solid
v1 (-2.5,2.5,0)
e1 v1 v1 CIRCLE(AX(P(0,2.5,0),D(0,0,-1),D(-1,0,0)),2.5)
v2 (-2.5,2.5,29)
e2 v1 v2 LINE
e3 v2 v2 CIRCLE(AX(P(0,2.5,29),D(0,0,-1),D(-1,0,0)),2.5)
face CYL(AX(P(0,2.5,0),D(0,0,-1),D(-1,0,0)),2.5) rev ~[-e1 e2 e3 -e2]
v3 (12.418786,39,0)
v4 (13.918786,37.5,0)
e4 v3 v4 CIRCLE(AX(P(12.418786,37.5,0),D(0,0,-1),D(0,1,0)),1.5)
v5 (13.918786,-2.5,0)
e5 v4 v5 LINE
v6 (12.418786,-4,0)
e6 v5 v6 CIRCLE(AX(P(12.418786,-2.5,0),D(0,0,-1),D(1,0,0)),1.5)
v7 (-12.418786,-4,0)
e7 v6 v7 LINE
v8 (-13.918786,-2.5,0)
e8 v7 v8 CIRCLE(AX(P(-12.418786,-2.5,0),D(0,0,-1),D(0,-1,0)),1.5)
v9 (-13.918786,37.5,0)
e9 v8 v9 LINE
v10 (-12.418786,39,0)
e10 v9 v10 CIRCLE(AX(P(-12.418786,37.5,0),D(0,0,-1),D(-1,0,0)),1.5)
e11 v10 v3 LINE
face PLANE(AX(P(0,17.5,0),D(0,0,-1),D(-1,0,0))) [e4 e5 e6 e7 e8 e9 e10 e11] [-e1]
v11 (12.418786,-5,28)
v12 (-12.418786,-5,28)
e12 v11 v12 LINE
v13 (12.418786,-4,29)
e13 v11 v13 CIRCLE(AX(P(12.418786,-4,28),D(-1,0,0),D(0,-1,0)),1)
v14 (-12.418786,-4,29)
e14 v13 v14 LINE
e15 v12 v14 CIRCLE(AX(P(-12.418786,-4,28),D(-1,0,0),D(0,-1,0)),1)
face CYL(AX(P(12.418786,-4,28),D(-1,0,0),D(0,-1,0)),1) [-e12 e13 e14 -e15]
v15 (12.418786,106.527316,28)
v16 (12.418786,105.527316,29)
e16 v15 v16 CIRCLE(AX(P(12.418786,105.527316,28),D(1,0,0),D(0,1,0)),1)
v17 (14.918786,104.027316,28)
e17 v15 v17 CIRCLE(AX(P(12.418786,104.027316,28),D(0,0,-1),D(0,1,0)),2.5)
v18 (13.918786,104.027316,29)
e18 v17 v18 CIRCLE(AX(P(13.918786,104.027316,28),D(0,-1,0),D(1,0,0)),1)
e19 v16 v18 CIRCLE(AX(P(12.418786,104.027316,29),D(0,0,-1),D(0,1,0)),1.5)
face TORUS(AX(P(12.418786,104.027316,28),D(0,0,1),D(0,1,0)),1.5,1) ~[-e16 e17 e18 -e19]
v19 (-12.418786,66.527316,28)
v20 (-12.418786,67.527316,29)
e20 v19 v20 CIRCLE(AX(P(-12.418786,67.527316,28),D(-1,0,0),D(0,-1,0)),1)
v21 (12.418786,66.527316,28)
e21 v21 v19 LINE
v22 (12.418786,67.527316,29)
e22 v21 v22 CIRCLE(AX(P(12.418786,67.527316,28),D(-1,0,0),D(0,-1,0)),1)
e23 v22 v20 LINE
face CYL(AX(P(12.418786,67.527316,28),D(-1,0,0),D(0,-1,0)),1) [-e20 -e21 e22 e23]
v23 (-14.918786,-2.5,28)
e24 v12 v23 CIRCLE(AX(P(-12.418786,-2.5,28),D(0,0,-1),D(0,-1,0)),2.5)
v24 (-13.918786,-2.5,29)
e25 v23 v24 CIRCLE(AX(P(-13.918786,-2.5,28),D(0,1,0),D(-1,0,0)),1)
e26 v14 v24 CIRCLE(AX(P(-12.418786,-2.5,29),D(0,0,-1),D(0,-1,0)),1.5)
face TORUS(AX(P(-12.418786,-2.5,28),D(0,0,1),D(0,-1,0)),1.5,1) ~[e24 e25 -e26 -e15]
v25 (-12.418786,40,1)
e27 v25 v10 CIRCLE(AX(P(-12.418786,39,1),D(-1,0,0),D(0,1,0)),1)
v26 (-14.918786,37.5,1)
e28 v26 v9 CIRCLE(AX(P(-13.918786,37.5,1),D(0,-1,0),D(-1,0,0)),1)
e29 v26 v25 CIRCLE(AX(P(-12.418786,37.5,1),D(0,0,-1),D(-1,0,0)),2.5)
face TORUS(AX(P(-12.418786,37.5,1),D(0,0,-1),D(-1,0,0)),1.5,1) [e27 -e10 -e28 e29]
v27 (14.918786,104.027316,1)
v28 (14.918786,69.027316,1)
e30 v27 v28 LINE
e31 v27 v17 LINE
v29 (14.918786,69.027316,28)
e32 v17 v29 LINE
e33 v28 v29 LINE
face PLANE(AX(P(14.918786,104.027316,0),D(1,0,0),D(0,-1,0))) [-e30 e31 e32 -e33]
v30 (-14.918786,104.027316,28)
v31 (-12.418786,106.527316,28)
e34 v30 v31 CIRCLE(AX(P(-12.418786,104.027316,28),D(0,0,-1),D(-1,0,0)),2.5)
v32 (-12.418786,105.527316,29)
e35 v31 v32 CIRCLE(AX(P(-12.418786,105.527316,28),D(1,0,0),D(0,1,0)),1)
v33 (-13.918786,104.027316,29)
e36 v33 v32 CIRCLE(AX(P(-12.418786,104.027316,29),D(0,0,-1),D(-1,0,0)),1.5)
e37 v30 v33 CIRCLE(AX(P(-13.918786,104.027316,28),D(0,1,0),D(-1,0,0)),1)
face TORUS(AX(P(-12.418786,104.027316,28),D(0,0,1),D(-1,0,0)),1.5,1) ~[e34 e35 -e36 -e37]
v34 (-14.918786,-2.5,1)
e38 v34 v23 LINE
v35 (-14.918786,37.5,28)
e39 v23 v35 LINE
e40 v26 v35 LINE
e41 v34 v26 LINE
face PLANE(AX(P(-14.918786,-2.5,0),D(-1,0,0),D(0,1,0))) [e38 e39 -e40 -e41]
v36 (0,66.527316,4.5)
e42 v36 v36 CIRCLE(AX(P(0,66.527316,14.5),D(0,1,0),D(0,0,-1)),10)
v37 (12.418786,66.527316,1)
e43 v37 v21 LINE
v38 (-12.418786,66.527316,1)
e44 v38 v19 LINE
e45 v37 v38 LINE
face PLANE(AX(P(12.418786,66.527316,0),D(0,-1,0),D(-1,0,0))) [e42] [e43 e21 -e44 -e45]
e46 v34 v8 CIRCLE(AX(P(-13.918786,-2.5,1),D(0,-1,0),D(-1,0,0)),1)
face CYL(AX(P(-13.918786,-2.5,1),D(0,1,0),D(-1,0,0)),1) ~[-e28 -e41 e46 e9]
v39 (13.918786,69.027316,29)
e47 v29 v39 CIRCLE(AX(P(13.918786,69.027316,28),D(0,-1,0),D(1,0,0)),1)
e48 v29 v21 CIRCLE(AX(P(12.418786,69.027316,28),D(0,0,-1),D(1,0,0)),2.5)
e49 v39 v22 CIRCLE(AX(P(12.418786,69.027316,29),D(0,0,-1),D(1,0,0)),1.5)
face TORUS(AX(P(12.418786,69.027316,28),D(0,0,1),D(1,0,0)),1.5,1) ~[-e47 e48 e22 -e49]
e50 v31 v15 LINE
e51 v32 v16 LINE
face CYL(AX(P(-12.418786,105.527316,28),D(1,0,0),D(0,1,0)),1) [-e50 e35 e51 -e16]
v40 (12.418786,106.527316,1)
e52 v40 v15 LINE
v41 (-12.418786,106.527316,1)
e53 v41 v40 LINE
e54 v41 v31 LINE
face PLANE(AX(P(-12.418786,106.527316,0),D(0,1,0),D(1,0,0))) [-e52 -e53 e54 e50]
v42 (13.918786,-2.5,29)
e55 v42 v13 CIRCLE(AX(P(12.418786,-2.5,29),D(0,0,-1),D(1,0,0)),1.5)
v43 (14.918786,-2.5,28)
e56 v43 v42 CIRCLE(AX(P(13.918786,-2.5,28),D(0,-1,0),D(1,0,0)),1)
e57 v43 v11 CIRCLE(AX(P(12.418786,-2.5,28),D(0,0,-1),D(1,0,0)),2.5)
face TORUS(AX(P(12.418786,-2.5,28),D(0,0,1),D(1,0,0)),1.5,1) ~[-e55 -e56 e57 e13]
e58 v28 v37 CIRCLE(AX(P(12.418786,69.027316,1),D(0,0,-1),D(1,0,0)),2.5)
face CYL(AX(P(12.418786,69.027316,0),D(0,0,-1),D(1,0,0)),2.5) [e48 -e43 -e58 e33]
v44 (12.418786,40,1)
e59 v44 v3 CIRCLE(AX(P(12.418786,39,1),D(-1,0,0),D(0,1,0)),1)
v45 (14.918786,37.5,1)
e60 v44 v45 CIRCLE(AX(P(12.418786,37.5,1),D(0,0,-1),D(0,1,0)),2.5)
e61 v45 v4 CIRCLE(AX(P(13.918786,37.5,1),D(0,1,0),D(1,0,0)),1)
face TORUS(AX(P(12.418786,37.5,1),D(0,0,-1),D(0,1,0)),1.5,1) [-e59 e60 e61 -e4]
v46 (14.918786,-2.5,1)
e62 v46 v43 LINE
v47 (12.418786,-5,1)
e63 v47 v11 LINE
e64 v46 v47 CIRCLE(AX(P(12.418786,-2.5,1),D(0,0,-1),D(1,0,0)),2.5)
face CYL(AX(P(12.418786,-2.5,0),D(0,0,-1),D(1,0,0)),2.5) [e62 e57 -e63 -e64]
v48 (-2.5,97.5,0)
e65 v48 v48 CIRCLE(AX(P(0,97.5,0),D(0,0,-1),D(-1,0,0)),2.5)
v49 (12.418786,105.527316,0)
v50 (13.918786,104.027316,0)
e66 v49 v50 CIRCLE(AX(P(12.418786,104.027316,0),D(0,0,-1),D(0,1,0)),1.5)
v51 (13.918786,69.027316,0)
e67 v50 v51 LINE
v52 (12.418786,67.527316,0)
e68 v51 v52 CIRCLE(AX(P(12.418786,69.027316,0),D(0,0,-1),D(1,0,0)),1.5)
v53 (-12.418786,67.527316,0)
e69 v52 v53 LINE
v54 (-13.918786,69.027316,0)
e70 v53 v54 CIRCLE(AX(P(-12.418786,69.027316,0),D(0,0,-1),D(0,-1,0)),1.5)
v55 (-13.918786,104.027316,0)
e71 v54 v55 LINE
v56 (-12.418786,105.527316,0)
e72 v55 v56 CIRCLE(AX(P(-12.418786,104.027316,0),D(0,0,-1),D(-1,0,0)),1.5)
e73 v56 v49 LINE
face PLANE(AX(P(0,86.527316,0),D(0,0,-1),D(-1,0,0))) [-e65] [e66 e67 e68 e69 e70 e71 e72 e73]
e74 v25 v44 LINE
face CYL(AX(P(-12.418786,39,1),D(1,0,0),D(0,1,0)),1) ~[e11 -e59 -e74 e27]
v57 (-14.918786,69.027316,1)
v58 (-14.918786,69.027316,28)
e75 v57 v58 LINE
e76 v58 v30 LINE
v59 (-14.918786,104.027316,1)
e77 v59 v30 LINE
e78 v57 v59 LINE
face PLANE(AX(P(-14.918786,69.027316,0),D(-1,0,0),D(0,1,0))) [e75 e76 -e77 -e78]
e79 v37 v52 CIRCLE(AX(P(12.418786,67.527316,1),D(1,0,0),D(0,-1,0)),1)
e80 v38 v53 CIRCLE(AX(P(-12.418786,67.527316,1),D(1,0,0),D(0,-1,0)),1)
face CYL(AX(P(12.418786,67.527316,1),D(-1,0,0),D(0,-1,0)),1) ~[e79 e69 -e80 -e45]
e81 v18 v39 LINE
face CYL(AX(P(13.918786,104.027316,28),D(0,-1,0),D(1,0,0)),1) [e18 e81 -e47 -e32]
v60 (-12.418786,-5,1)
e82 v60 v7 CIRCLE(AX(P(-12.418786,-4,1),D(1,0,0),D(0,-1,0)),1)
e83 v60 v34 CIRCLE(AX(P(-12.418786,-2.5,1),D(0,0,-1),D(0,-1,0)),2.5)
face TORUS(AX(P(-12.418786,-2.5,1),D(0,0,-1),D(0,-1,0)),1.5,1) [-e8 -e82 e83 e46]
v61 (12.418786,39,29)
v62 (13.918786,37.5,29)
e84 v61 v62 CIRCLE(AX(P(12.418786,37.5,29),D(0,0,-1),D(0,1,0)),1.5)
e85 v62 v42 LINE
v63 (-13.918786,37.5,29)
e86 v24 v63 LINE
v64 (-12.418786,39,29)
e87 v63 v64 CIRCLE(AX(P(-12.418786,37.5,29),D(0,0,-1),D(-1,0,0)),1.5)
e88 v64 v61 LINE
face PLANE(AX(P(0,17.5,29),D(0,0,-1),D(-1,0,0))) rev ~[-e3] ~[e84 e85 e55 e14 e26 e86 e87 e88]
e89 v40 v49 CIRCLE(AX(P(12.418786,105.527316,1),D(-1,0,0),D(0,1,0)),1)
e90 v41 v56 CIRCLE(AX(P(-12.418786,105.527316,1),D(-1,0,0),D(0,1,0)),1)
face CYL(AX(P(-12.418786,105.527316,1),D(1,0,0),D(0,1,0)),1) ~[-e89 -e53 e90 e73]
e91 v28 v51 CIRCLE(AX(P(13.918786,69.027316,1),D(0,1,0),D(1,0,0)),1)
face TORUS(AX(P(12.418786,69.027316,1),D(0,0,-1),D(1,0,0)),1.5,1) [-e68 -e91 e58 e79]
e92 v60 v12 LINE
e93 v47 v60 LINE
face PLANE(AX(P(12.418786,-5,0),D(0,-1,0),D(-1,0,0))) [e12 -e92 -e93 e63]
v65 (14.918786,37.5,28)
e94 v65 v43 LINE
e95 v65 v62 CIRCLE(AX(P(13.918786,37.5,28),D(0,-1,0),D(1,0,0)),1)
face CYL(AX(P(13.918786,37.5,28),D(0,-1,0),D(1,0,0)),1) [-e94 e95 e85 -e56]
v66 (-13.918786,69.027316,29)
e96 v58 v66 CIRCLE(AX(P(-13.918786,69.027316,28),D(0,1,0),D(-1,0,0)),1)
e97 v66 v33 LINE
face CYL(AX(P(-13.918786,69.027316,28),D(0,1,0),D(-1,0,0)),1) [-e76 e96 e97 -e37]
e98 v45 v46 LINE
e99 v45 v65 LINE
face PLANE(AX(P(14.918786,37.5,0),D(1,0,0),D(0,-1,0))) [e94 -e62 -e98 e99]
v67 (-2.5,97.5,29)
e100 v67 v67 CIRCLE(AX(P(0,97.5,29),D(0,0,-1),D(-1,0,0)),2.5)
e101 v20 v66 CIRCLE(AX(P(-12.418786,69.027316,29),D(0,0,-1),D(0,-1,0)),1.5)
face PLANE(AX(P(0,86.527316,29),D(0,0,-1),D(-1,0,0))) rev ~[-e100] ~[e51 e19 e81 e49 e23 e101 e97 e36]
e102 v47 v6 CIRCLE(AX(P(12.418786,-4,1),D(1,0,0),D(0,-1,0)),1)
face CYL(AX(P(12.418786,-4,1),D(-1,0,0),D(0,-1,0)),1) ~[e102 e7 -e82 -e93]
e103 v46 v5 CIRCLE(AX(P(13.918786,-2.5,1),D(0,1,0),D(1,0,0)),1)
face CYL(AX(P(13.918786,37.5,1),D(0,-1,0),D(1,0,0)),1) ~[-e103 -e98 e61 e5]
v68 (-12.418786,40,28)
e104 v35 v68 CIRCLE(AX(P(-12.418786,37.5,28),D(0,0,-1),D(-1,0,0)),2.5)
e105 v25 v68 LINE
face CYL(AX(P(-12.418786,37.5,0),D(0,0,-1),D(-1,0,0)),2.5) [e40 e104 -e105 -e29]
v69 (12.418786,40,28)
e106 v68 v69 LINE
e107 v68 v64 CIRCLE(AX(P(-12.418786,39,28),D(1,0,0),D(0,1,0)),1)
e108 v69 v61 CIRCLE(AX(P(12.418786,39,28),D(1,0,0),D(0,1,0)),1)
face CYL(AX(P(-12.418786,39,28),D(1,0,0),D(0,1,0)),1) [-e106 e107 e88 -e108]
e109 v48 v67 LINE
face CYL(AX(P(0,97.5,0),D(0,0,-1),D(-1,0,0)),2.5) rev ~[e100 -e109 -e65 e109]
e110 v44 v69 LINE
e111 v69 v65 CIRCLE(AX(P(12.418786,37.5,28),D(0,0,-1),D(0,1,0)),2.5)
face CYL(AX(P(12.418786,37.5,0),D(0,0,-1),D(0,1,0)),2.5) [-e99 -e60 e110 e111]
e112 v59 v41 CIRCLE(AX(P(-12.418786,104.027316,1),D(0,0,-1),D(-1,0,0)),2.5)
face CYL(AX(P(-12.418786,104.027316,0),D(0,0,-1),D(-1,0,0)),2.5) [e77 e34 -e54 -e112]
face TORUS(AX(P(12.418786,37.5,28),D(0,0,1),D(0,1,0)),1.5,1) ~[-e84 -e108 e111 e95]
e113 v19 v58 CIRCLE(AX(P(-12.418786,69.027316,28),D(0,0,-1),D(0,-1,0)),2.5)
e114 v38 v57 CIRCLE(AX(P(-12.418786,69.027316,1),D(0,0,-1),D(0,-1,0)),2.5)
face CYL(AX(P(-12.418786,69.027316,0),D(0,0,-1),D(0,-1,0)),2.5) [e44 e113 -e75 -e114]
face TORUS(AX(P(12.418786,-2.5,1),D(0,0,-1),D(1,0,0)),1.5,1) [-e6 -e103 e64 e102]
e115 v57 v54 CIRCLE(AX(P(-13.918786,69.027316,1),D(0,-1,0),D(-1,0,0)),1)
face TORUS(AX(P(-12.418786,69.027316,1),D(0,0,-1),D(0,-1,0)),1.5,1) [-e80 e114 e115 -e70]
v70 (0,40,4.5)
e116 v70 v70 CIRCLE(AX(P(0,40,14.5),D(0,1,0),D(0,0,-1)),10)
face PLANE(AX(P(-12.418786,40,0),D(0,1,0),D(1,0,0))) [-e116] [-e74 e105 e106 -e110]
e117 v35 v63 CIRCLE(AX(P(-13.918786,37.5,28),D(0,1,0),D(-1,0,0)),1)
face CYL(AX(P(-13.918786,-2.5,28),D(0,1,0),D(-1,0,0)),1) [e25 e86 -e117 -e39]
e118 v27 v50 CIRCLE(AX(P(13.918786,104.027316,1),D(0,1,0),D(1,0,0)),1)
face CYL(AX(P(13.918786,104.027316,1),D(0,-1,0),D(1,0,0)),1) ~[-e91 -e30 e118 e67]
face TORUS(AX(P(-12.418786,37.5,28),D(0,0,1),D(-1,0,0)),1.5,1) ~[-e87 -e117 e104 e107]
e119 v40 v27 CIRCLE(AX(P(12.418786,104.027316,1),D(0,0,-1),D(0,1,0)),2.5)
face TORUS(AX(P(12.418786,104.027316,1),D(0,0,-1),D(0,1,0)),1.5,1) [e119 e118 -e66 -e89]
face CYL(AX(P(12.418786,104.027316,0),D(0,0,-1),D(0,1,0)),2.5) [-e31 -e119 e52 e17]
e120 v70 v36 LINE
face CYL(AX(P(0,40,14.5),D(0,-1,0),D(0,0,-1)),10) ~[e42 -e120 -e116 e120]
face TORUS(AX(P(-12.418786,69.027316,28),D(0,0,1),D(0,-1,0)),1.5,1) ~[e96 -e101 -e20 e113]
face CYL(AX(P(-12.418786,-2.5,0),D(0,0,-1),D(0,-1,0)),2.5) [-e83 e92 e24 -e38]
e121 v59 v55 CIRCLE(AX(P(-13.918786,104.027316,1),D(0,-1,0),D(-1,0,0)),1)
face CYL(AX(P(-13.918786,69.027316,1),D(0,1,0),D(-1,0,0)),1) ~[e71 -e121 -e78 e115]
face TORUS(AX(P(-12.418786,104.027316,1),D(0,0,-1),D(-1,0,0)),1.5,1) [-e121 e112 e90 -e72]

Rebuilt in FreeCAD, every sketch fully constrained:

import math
import FreeCAD as App
import Part
import Sketcher


def edges_at(feature, points):
    """Names of the edges that pass closest to the given points."""
    edges = feature.Shape.Edges
    near = lambda p: min(range(len(edges)), key=lambda i: edges[i].distToShape(Part.Vertex(*p))[0])
    return sorted({f"Edge{near(p) + 1}" for p in points})

doc = App.newDocument("Part")
body = doc.addObject("PartDesign::Body", "Body")

sketch1 = body.newObject("Sketcher::SketchObject", "Sketch")
sketch1.AttachmentSupport = (doc.getObject("XY_Plane"), [""])
sketch1.MapMode = "FlatFace"
sketch1.addGeometry(Part.LineSegment(App.Vector(12.4, 106.5, 0), App.Vector(-12.4, 106.5, 0)), False)
sketch1.addGeometry(Part.ArcOfCircle(Part.Circle(App.Vector(-12.4, 104, 0), App.Vector(0, 0, 1), 2.5), math.radians(90), math.radians(180)), False)
sketch1.addGeometry(Part.LineSegment(App.Vector(-14.9, 104, 0), App.Vector(-14.9, 69, 0)), False)
sketch1.addGeometry(Part.ArcOfCircle(Part.Circle(App.Vector(-12.4, 69, 0), App.Vector(0, 0, 1), 2.5), math.radians(180), math.radians(270)), False)
sketch1.addGeometry(Part.LineSegment(App.Vector(-12.4, 66.5, 0), App.Vector(12.4, 66.5, 0)), False)
sketch1.addGeometry(Part.ArcOfCircle(Part.Circle(App.Vector(12.4, 69, 0), App.Vector(0, 0, 1), 2.5), math.radians(-90), math.radians(0)), False)
sketch1.addGeometry(Part.LineSegment(App.Vector(14.9, 69, 0), App.Vector(14.9, 104, 0)), False)
sketch1.addGeometry(Part.ArcOfCircle(Part.Circle(App.Vector(12.4, 104, 0), App.Vector(0, 0, 1), 2.5), math.radians(0), math.radians(90)), False)
sketch1.addConstraint(Sketcher.Constraint("Tangent", 0, 2, 1, 1))
sketch1.addConstraint(Sketcher.Constraint("Tangent", 1, 2, 2, 1))
sketch1.addConstraint(Sketcher.Constraint("Tangent", 2, 2, 3, 1))
sketch1.addConstraint(Sketcher.Constraint("Tangent", 3, 2, 4, 1))
sketch1.addConstraint(Sketcher.Constraint("Tangent", 4, 2, 5, 1))
sketch1.addConstraint(Sketcher.Constraint("Tangent", 5, 2, 6, 1))
sketch1.addConstraint(Sketcher.Constraint("Tangent", 6, 2, 7, 1))
sketch1.addConstraint(Sketcher.Constraint("Tangent", 7, 2, 0, 1))
sketch1.addConstraint(Sketcher.Constraint("Horizontal", 0))
sketch1.addConstraint(Sketcher.Constraint("Vertical", 2))
sketch1.addConstraint(Sketcher.Constraint("Horizontal", 4))
sketch1.addConstraint(Sketcher.Constraint("Vertical", 6))
sketch1.addConstraint(Sketcher.Constraint("Equal", 1, 3))
sketch1.addConstraint(Sketcher.Constraint("Equal", 3, 5))
sketch1.addConstraint(Sketcher.Constraint("Equal", 5, 7))
sketch1.addConstraint(Sketcher.Constraint("Radius", 1, 2.5))
sketch1.addConstraint(Sketcher.Constraint("DistanceY", 2, 2, 2, 1, 35.0))
sketch1.addConstraint(Sketcher.Constraint("DistanceX", 0, 2, 0, 1, 24.837573))
sketch1.addConstraint(Sketcher.Constraint("DistanceX", 1, 3, -1, 1, 12.418786))
sketch1.addConstraint(Sketcher.Constraint("DistanceY", -1, 1, 1, 3, 104.027316))
pad1 = body.newObject("PartDesign::Pad", "Pad")
pad1.Profile = sketch1
pad1.Length = 29
doc.recompute()

fillet = body.newObject("PartDesign::Fillet", "Fillet")
fillet.Base = (pad1, edges_at(pad1, [
    (14.187, 105.795, 0),
    (0, 106.527, 0),
    (-14.187, 105.795, 0),
    (-14.919, 86.527, 0),
    (-14.187, 67.26, 0),
    (0, 66.527, 0),
    (14.187, 67.26, 0),
    (14.919, 86.527, 0),
    (14.187, 105.795, 29),
    (0, 106.527, 29),
    (-14.187, 105.795, 29),
    (-14.919, 86.527, 29),
    (-14.187, 67.26, 29),
    (0, 66.527, 29),
    (14.187, 67.26, 29),
    (14.919, 86.527, 29),
]))
fillet.Radius = 1
body2 = doc.addObject("PartDesign::Body", "Body001")

sketch2 = body2.newObject("Sketcher::SketchObject", "Sketch001")
sketch2.AttachmentSupport = (doc.getObject("XY_Plane001"), [""])
sketch2.MapMode = "FlatFace"
sketch2.addGeometry(Part.ArcOfCircle(Part.Circle(App.Vector(12.4, 37.5, 0), App.Vector(0, 0, 1), 2.5), math.radians(0), math.radians(90)), False)
sketch2.addGeometry(Part.LineSegment(App.Vector(12.4, 40, 0), App.Vector(-12.4, 40, 0)), False)
sketch2.addGeometry(Part.ArcOfCircle(Part.Circle(App.Vector(-12.4, 37.5, 0), App.Vector(0, 0, 1), 2.5), math.radians(90), math.radians(180)), False)
sketch2.addGeometry(Part.LineSegment(App.Vector(-14.9, 37.5, 0), App.Vector(-14.9, -2.5, 0)), False)
sketch2.addGeometry(Part.ArcOfCircle(Part.Circle(App.Vector(-12.4, -2.5, 0), App.Vector(0, 0, 1), 2.5), math.radians(180), math.radians(270)), False)
sketch2.addGeometry(Part.LineSegment(App.Vector(-12.4, -5, 0), App.Vector(12.4, -5, 0)), False)
sketch2.addGeometry(Part.ArcOfCircle(Part.Circle(App.Vector(12.4, -2.5, 0), App.Vector(0, 0, 1), 2.5), math.radians(-90), math.radians(0)), False)
sketch2.addGeometry(Part.LineSegment(App.Vector(14.9, -2.5, 0), App.Vector(14.9, 37.5, 0)), False)
sketch2.addConstraint(Sketcher.Constraint("Tangent", 0, 2, 1, 1))
sketch2.addConstraint(Sketcher.Constraint("Tangent", 1, 2, 2, 1))
sketch2.addConstraint(Sketcher.Constraint("Tangent", 2, 2, 3, 1))
sketch2.addConstraint(Sketcher.Constraint("Tangent", 3, 2, 4, 1))
sketch2.addConstraint(Sketcher.Constraint("Tangent", 4, 2, 5, 1))
sketch2.addConstraint(Sketcher.Constraint("Tangent", 5, 2, 6, 1))
sketch2.addConstraint(Sketcher.Constraint("Tangent", 6, 2, 7, 1))
sketch2.addConstraint(Sketcher.Constraint("Tangent", 7, 2, 0, 1))
sketch2.addConstraint(Sketcher.Constraint("Horizontal", 1))
sketch2.addConstraint(Sketcher.Constraint("Vertical", 3))
sketch2.addConstraint(Sketcher.Constraint("Horizontal", 5))
sketch2.addConstraint(Sketcher.Constraint("Vertical", 7))
sketch2.addConstraint(Sketcher.Constraint("Equal", 0, 2))
sketch2.addConstraint(Sketcher.Constraint("Equal", 2, 4))
sketch2.addConstraint(Sketcher.Constraint("Equal", 4, 6))
sketch2.addConstraint(Sketcher.Constraint("Radius", 0, 2.5))
sketch2.addConstraint(Sketcher.Constraint("DistanceY", 3, 2, 3, 1, 40.0))
sketch2.addConstraint(Sketcher.Constraint("DistanceY", -1, 1, 0, 2, 40.0))
sketch2.addConstraint(Sketcher.Constraint("DistanceX", 1, 2, 1, 1, 24.837573))
sketch2.addConstraint(Sketcher.Constraint("DistanceX", -1, 1, 0, 3, 12.418786))
pad2 = body2.newObject("PartDesign::Pad", "Pad001")
pad2.Profile = sketch2
pad2.Length = 29
doc.recompute()

fillet2 = body2.newObject("PartDesign::Fillet", "Fillet001")
fillet2.Base = (pad2, edges_at(pad2, [
    (-14.919, 17.5, 0),
    (-14.187, 39.268, 0),
    (0, 40, 0),
    (14.187, 39.268, 0),
    (14.919, 17.5, 0),
    (14.187, -4.268, 29),
    (14.187, -4.268, 0),
    (0, -5, 0),
    (-14.187, -4.268, 0),
    (14.919, 17.5, 29),
    (14.187, 39.268, 29),
    (0, 40, 29),
    (-14.187, 39.268, 29),
    (-14.919, 17.5, 29),
    (-14.187, -4.268, 29),
    (0, -5, 29),
]))
fillet2.Radius = 1
body.AllowCompound = True
doc.recompute()

boolean = body.newObject("PartDesign::Boolean", "Boolean")
boolean.Type = "Fuse"
boolean.addObjects([body2])

sketch3 = body.newObject("Sketcher::SketchObject", "Sketch002")
sketch3.AttachmentSupport = (doc.getObject("XZ_Plane"), [""])
sketch3.MapMode = "FlatFace"
sketch3.AttachmentOffset = App.Placement(App.Vector(0, 0, -40), App.Rotation())
sketch3.addGeometry(Part.Circle(App.Vector(0, 14, 0), App.Vector(0, 0, 1), 10), False)
sketch3.addConstraint(Sketcher.Constraint("PointOnObject", 0, 3, -2))
sketch3.addConstraint(Sketcher.Constraint("Diameter", 0, 20.0))
sketch3.addConstraint(Sketcher.Constraint("DistanceY", -1, 1, 0, 3, 14.5))
pad3 = body.newObject("PartDesign::Pad", "Pad002")
pad3.Profile = sketch3
pad3.Length = 26.527316
pad3.Reversed = True

sketch4 = body.newObject("Sketcher::SketchObject", "Sketch003")
sketch4.AttachmentSupport = (doc.getObject("XY_Plane"), [""])
sketch4.MapMode = "FlatFace"
sketch4.addGeometry(Part.Circle(App.Vector(0, 97.5, 0), App.Vector(0, 0, 1), 2.5), False)
sketch4.addGeometry(Part.Circle(App.Vector(0, 2.5, 0), App.Vector(0, 0, 1), 2.5), False)
sketch4.addConstraint(Sketcher.Constraint("Equal", 0, 1))
sketch4.addConstraint(Sketcher.Constraint("PointOnObject", 0, 3, -2))
sketch4.addConstraint(Sketcher.Constraint("PointOnObject", 1, 3, -2))
sketch4.addConstraint(Sketcher.Constraint("Diameter", 0, 5.0))
sketch4.addConstraint(Sketcher.Constraint("DistanceY", 1, 3, 0, 3, 95.0))
sketch4.addConstraint(Sketcher.Constraint("DistanceY", -1, 1, 0, 3, 97.5))
pocket1 = body.newObject("PartDesign::Pocket", "Pocket")
pocket1.Profile = sketch4
pocket1.Type = "ThroughAll"
pocket1.Reversed = True

doc.recompute()
